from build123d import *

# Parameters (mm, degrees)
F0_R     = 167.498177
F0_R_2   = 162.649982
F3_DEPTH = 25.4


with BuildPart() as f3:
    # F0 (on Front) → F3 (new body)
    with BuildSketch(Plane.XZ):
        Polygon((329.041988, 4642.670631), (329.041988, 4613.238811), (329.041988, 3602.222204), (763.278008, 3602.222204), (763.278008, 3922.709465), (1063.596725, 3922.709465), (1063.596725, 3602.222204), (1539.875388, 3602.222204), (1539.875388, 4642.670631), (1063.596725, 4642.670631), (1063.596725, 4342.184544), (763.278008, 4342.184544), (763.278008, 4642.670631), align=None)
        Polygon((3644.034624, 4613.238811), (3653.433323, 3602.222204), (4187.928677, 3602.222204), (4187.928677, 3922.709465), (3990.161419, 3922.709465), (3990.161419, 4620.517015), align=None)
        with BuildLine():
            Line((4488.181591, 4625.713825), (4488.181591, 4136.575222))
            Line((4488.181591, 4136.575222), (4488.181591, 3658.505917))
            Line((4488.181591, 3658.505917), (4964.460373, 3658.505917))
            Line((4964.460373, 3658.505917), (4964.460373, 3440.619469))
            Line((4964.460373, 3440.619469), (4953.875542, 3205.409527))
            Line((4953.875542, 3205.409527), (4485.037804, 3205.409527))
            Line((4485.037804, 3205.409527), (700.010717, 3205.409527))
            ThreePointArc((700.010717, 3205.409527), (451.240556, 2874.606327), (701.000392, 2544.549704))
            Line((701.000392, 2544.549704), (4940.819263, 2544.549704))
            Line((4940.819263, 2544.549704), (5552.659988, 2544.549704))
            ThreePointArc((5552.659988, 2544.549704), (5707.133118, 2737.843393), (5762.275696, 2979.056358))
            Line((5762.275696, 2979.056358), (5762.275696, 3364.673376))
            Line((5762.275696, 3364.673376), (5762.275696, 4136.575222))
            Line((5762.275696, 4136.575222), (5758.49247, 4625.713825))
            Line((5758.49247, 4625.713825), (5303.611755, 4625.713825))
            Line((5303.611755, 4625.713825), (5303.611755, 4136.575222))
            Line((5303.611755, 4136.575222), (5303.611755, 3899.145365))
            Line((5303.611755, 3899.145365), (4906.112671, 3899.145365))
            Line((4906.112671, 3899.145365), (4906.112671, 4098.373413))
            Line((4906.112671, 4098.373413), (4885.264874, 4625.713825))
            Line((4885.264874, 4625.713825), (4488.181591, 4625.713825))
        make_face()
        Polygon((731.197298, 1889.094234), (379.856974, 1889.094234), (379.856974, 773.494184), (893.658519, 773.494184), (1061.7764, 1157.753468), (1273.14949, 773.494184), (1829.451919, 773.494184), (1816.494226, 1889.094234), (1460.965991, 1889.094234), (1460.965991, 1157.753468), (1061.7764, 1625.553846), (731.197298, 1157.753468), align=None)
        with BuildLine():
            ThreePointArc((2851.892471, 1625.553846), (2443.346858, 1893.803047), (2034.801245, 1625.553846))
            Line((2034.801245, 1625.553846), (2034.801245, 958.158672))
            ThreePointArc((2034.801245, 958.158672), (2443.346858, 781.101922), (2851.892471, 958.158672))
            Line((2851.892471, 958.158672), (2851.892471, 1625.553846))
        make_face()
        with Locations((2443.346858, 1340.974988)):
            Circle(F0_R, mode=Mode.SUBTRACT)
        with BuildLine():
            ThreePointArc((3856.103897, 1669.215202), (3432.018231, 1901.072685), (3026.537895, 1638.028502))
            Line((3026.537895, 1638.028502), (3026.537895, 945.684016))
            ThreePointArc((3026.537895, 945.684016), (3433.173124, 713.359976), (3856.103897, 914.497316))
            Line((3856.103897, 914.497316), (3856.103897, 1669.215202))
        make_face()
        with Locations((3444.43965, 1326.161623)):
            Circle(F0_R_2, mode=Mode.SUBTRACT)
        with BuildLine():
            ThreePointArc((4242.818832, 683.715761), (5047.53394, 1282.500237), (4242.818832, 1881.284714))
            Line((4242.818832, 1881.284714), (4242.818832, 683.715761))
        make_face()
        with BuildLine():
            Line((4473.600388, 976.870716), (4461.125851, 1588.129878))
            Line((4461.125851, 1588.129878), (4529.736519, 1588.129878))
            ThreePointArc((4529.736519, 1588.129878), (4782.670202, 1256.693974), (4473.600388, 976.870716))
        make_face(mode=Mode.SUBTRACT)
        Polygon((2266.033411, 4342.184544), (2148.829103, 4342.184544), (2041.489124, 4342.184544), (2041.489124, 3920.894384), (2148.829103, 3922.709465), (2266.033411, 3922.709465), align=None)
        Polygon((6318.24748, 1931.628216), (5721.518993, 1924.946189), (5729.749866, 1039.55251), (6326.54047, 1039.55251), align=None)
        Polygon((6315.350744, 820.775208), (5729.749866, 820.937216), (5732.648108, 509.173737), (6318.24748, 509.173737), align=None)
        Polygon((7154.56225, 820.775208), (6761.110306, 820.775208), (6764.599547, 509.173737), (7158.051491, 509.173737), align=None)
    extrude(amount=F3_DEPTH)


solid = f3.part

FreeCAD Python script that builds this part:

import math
import FreeCAD as App
import Part
import Sketcher
Q = App.Units.Quantity


def add_polygon(sketch, points):
    """Adds a closed chain of lines whose ends are joined by coincident constraints."""
    first, n = sketch.GeometryCount, len(points)
    for a, b in zip(points, points[1:] + points[:1]):
        sketch.addGeometry(Part.LineSegment(App.Vector(*a, 0), App.Vector(*b, 0)), False)
    for i in range(n):
        sketch.addConstraint(Sketcher.Constraint("Coincident", first + i, 2, first + (i + 1) % n, 1))

doc = App.newDocument("Part")
body = doc.addObject("PartDesign::Body", "Body")
body.AllowCompound = True

sketch1 = body.newObject("Sketcher::SketchObject", "Sketch")
sketch1.AttachmentSupport = (doc.getObject("XZ_Plane"), [""])
sketch1.MapMode = "FlatFace"
add_polygon(sketch1, [(329.041988, 4642.670631), (329.041988, 3602.222204), (763.278008, 3602.222204), (763.278008, 3922.709465), (1063.596725, 3922.709465), (1063.596725, 3602.222204), (1539.875388, 3602.222204), (1539.875388, 4642.670631), (1063.596725, 4642.670631), (1063.596725, 4342.184544), (763.278008, 4342.184544), (763.278008, 4642.670631)])
add_polygon(sketch1, [(3644.034624, 4613.238811), (3653.433323, 3602.222204), (4187.928677, 3602.222204), (4187.928677, 3922.709465), (3990.161419, 3922.709465), (3990.161419, 4620.517015)])
sketch1.addGeometry(Part.LineSegment(App.Vector(4488.181591, 4625.713825, 0), App.Vector(4488.181591, 3658.505917, 0)), False)
sketch1.addGeometry(Part.LineSegment(App.Vector(4488.181591, 3658.505917, 0), App.Vector(4964.460373, 3658.505917, 0)), False)
sketch1.addGeometry(Part.LineSegment(App.Vector(4964.460373, 3658.505917, 0), App.Vector(4964.460373, 3440.619469, 0)), False)
sketch1.addGeometry(Part.LineSegment(App.Vector(4964.460373, 3440.619469, 0), App.Vector(4953.875542, 3205.409527, 0)), False)
sketch1.addGeometry(Part.LineSegment(App.Vector(4953.875542, 3205.409527, 0), App.Vector(700.010717, 3205.409527, 0)), False)
sketch1.addGeometry(Part.ArcOfCircle(Part.Circle(App.Vector(794.884804, 2875.120954, 0), App.Vector(0, 0, 1), 343.644633), math.radians(106.026503), math.radians(254.145104)), False)
sketch1.addGeometry(Part.LineSegment(App.Vector(701.000392, 2544.549704, 0), App.Vector(5552.659988, 2544.549704, 0)), False)
sketch1.addGeometry(Part.ArcOfCircle(Part.Circle(App.Vector(5207.129377, 2979.056358, 0), App.Vector(0, 0, 1), 555.146319), math.radians(-51.507398), math.radians(0)), False)
sketch1.addGeometry(Part.LineSegment(App.Vector(5762.275696, 2979.056358, 0), App.Vector(5762.275696, 4136.575222, 0)), False)
sketch1.addGeometry(Part.LineSegment(App.Vector(5762.275696, 4136.575222, 0), App.Vector(5758.49247, 4625.713825, 0)), False)
sketch1.addGeometry(Part.LineSegment(App.Vector(5758.49247, 4625.713825, 0), App.Vector(5303.611755, 4625.713825, 0)), False)
sketch1.addGeometry(Part.LineSegment(App.Vector(5303.611755, 4625.713825, 0), App.Vector(5303.611755, 3899.145365, 0)), False)
sketch1.addGeometry(Part.LineSegment(App.Vector(5303.611755, 3899.145365, 0), App.Vector(4906.112671, 3899.145365, 0)), False)
sketch1.addGeometry(Part.LineSegment(App.Vector(4906.112671, 3899.145365, 0), App.Vector(4906.112671, 4098.373413, 0)), False)
sketch1.addGeometry(Part.LineSegment(App.Vector(4906.112671, 4098.373413, 0), App.Vector(4885.264874, 4625.713825, 0)), False)
sketch1.addGeometry(Part.LineSegment(App.Vector(4885.264874, 4625.713825, 0), App.Vector(4488.181591, 4625.713825, 0)), False)
add_polygon(sketch1, [(731.197298, 1889.094234), (379.856974, 1889.094234), (379.856974, 773.494184), (893.658519, 773.494184), (1061.7764, 1157.753468), (1273.14949, 773.494184), (1829.451919, 773.494184), (1816.494226, 1889.094234), (1460.965991, 1889.094234), (1460.965991, 1157.753468), (1061.7764, 1625.553846), (731.197298, 1157.753468)])
sketch1.addGeometry(Part.ArcOfCircle(Part.Circle(App.Vector(2443.346858, 1448.569378, 0), App.Vector(0, 0, 1), 445.233669), math.radians(23.422557), math.radians(156.577443)), False)
sketch1.addGeometry(Part.LineSegment(App.Vector(2034.801245, 1625.553846, 0), App.Vector(2034.801245, 958.158672, 0)), False)
sketch1.addGeometry(Part.ArcOfCircle(Part.Circle(App.Vector(2443.346858, 1340.974987, 0), App.Vector(0, 0, 1), 559.873065), math.radians(-136.862183), math.radians(-43.137817)), False)
sketch1.addGeometry(Part.LineSegment(App.Vector(2851.892471, 958.158672, 0), App.Vector(2851.892471, 1625.553846, 0)), False)
sketch1.addGeometry(Part.Circle(App.Vector(2443.346858, 1340.974988, 0), App.Vector(0, 0, 1), 167.498177), False)
sketch1.addGeometry(Part.ArcOfCircle(Part.Circle(App.Vector(3449.738536, 1429.712678, 0), App.Vector(0, 0, 1), 471.692978), math.radians(30.514133), math.radians(153.791794)), False)
sketch1.addGeometry(Part.LineSegment(App.Vector(3026.537895, 1638.028502, 0), App.Vector(3026.537895, 945.684016, 0)), False)
sketch1.addGeometry(Part.ArcOfCircle(Part.Circle(App.Vector(3452.168423, 1218.634817, 0), App.Vector(0, 0, 1), 505.63177), math.radians(-147.328525), math.radians(-36.977402)), False)
sketch1.addGeometry(Part.LineSegment(App.Vector(3856.103897, 914.497316, 0), App.Vector(3856.103897, 1669.215202, 0)), False)
sketch1.addGeometry(Part.Circle(App.Vector(3444.43965, 1326.161623, 0), App.Vector(0, 0, 1), 162.649982), False)
sketch1.addGeometry(Part.ArcOfCircle(Part.Circle(App.Vector(4422.400123, 1282.500237, 0), App.Vector(0, 0, 1), 625.133817), math.radians(-106.694499), math.radians(106.694499)), False)
sketch1.addGeometry(Part.LineSegment(App.Vector(4242.818832, 1881.284714, 0), App.Vector(4242.818832, 683.715761, 0)), False)
sketch1.addGeometry(Part.ArcOfCircle(Part.Circle(App.Vector(4475.961393, 1284.861153, 0), App.Vector(0, 0, 1), 307.999487), math.radians(-90.439212), math.radians(79.944918)), False)
sketch1.addGeometry(Part.LineSegment(App.Vector(4473.600388, 976.870716, 0), App.Vector(4461.125851, 1588.129878, 0)), False)
sketch1.addGeometry(Part.LineSegment(App.Vector(4461.125851, 1588.129878, 0), App.Vector(4529.736519, 1588.129878, 0)), False)
add_polygon(sketch1, [(2266.033411, 4342.184544), (2041.489124, 4342.184544), (2041.489124, 3920.894384), (2148.829103, 3922.709465), (2266.033411, 3922.709465)])
add_polygon(sketch1, [(6318.24748, 1931.628216), (5721.518993, 1924.946189), (5729.749866, 1039.55251), (6326.54047, 1039.55251)])
add_polygon(sketch1, [(6315.350744, 820.775208), (5729.749866, 820.937216), (5732.648108, 509.173737), (6318.24748, 509.173737)])
add_polygon(sketch1, [(7154.56225, 820.775208), (6761.110306, 820.775208), (6764.599547, 509.173737), (7158.051491, 509.173737)])
sketch1.addConstraint(Sketcher.Constraint("Coincident", 18, 2, 19, 1))
sketch1.addConstraint(Sketcher.Constraint("Coincident", 19, 2, 20, 1))
sketch1.addConstraint(Sketcher.Constraint("Coincident", 20, 2, 21, 1))
sketch1.addConstraint(Sketcher.Constraint("Coincident", 21, 2, 22, 1))
sketch1.addConstraint(Sketcher.Constraint("Coincident", 22, 2, 23, 1))
sketch1.addConstraint(Sketcher.Constraint("Coincident", 23, 2, 24, 1))
sketch1.addConstraint(Sketcher.Constraint("Coincident", 24, 2, 25, 1))
sketch1.addConstraint(Sketcher.Constraint("Tangent", 25, 2, 26, 1))
sketch1.addConstraint(Sketcher.Constraint("Coincident", 26, 2, 27, 1))
sketch1.addConstraint(Sketcher.Constraint("Coincident", 27, 2, 28, 1))
sketch1.addConstraint(Sketcher.Constraint("Coincident", 28, 2, 29, 1))
sketch1.addConstraint(Sketcher.Constraint("Coincident", 29, 2, 30, 1))
sketch1.addConstraint(Sketcher.Constraint("Coincident", 30, 2, 31, 1))
sketch1.addConstraint(Sketcher.Constraint("Coincident", 31, 2, 32, 1))
sketch1.addConstraint(Sketcher.Constraint("Coincident", 32, 2, 33, 1))
sketch1.addConstraint(Sketcher.Constraint("Coincident", 33, 2, 18, 1))
sketch1.addConstraint(Sketcher.Constraint("Coincident", 46, 2, 47, 1))
sketch1.addConstraint(Sketcher.Constraint("Coincident", 47, 2, 48, 1))
sketch1.addConstraint(Sketcher.Constraint("Coincident", 48, 2, 49, 1))
sketch1.addConstraint(Sketcher.Constraint("Coincident", 49, 2, 46, 1))
sketch1.addConstraint(Sketcher.Constraint("Coincident", 51, 2, 52, 1))
sketch1.addConstraint(Sketcher.Constraint("Coincident", 52, 2, 53, 1))
sketch1.addConstraint(Sketcher.Constraint("Coincident", 53, 2, 54, 1))
sketch1.addConstraint(Sketcher.Constraint("Coincident", 54, 2, 51, 1))
sketch1.addConstraint(Sketcher.Constraint("Coincident", 56, 1, 57, 2))
sketch1.addConstraint(Sketcher.Constraint("Coincident", 57, 1, 56, 2))
sketch1.addConstraint(Sketcher.Constraint("Coincident", 58, 1, 59, 1))
sketch1.addConstraint(Sketcher.Constraint("Coincident", 59, 2, 60, 1))
sketch1.addConstraint(Sketcher.Constraint("Coincident", 60, 2, 58, 2))
sketch1.addConstraint(Sketcher.Constraint("Vertical", 0))
sketch1.addConstraint(Sketcher.Constraint("Horizontal", 1))
sketch1.addConstraint(Sketcher.Constraint("Vertical", 2))
sketch1.addConstraint(Sketcher.Constraint("Horizontal", 3))
sketch1.addConstraint(Sketcher.Constraint("Vertical", 4))
sketch1.addConstraint(Sketcher.Constraint("Horizontal", 5))
sketch1.addConstraint(Sketcher.Constraint("Vertical", 6))
sketch1.addConstraint(Sketcher.Constraint("Horizontal", 7))
sketch1.addConstraint(Sketcher.Constraint("Vertical", 8))
sketch1.addConstraint(Sketcher.Constraint("Horizontal", 9))
sketch1.addConstraint(Sketcher.Constraint("Vertical", 10))
sketch1.addConstraint(Sketcher.Constraint("Horizontal", 11))
sketch1.addConstraint(Sketcher.Constraint("Horizontal", 13))
sketch1.addConstraint(Sketcher.Constraint("Vertical", 14))
sketch1.addConstraint(Sketcher.Constraint("Horizontal", 15))
sketch1.addConstraint(Sketcher.Constraint("Vertical", 16))
sketch1.addConstraint(Sketcher.Constraint("Vertical", 18))
sketch1.addConstraint(Sketcher.Constraint("Horizontal", 19))
sketch1.addConstraint(Sketcher.Constraint("Vertical", 20))
sketch1.addConstraint(Sketcher.Constraint("Horizontal", 22))
sketch1.addConstraint(Sketcher.Constraint("Horizontal", 24))
sketch1.addConstraint(Sketcher.Constraint("Vertical", 26))
sketch1.addConstraint(Sketcher.Constraint("Horizontal", 28))
sketch1.addConstraint(Sketcher.Constraint("Vertical", 29))
sketch1.addConstraint(Sketcher.Constraint("Horizontal", 30))
sketch1.addConstraint(Sketcher.Constraint("Vertical", 31))
sketch1.addConstraint(Sketcher.Constraint("Horizontal", 33))
sketch1.addConstraint(Sketcher.Constraint("Horizontal", 34))
sketch1.addConstraint(Sketcher.Constraint("Vertical", 35))
sketch1.addConstraint(Sketcher.Constraint("Horizontal", 36))
sketch1.addConstraint(Sketcher.Constraint("Horizontal", 39))
sketch1.addConstraint(Sketcher.Constraint("Horizontal", 41))
sketch1.addConstraint(Sketcher.Constraint("Vertical", 42))
sketch1.addConstraint(Sketcher.Constraint("Vertical", 45))
sketch1.addConstraint(Sketcher.Constraint("Vertical", 47))
sketch1.addConstraint(Sketcher.Constraint("Vertical", 49))
sketch1.addConstraint(Sketcher.Constraint("Vertical", 52))
sketch1.addConstraint(Sketcher.Constraint("Vertical", 54))
sketch1.addConstraint(Sketcher.Constraint("Vertical", 57))
sketch1.addConstraint(Sketcher.Constraint("Horizontal", 60))
sketch1.addConstraint(Sketcher.Constraint("Horizontal", 61))
sketch1.addConstraint(Sketcher.Constraint("Vertical", 62))
sketch1.addConstraint(Sketcher.Constraint("Horizontal", 64))
sketch1.addConstraint(Sketcher.Constraint("Vertical", 65))
sketch1.addConstraint(Sketcher.Constraint("Horizontal", 68))
sketch1.addConstraint(Sketcher.Constraint("Horizontal", 72))
sketch1.addConstraint(Sketcher.Constraint("Horizontal", 74))
sketch1.addConstraint(Sketcher.Constraint("Horizontal", 76))
sketch1.addConstraint(Sketcher.Constraint("Coincident", 50, 3, 48, 3))
sketch1.addConstraint(Sketcher.Constraint("Parallel", 12, 67))
sketch1.addConstraint(Sketcher.Constraint("Parallel", 67, 69))
sketch1.addConstraint(Sketcher.Constraint("Parallel", 69, 71))
sketch1.addConstraint(Sketcher.Constraint("Parallel", 71, 73))
sketch1.addConstraint(Sketcher.Constraint("Perpendicular", 66, 75))
sketch1.addConstraint(Sketcher.Constraint("Parallel", 75, 77))
sketch1.addConstraint(Sketcher.Constraint("Horizontal", 1, 2, 4, 2))
sketch1.addConstraint(Sketcher.Constraint("Horizontal", 7, 2, 10, 2))
sketch1.addConstraint(Sketcher.Constraint("Horizontal", 5, 2, 12, 2))
sketch1.addConstraint(Sketcher.Constraint("Horizontal", 3, 2, 14, 2))
sketch1.addConstraint(Sketcher.Constraint("Horizontal", 28, 2, 32, 2))
sketch1.addConstraint(Sketcher.Constraint("Horizontal", 36, 2, 38, 2))
sketch1.addConstraint(Sketcher.Constraint("Horizontal", 34, 2, 40, 2))
sketch1.addConstraint(Sketcher.Constraint("Horizontal", 37, 2, 42, 2))
sketch1.addConstraint(Sketcher.Constraint("Horizontal", 42, 2, 44, 2))
sketch1.addConstraint(Sketcher.Constraint("Horizontal", 43, 2, 46, 2))
sketch1.addConstraint(Sketcher.Constraint("Horizontal", 47, 2, 48, 2))
sketch1.addConstraint(Sketcher.Constraint("Horizontal", 46, 2, 49, 2))
sketch1.addConstraint(Sketcher.Constraint("Horizontal", 9, 2, 61, 2))
sketch1.addConstraint(Sketcher.Constraint("Horizontal", 15, 2, 63, 2))
sketch1.addConstraint(Sketcher.Constraint("Horizontal", 73, 2, 74, 2))
sketch1.addConstraint(Sketcher.Constraint("Horizontal", 72, 2, 75, 2))
sketch1.addConstraint(Sketcher.Constraint("Vertical", 4, 2, 7, 2))
sketch1.addConstraint(Sketcher.Constraint("Vertical", 2, 2, 9, 2))
sketch1.addConstraint(Sketcher.Constraint("Vertical", 37, 2, 43, 2))
sketch1.addConstraint(Sketcher.Constraint("Vertical", 67, 2, 70, 2))
sketch1.addConstraint(Sketcher.Constraint("Vertical", 69, 2, 72, 2))
sketch1.addConstraint(Sketcher.Constraint("DistanceX", 33, 2, 33, 1, Q("15.6332001 in")))
sketch1.addConstraint(Sketcher.Constraint("Radius", 25, 555.146319))
sketch1.addConstraint(Sketcher.Constraint("Radius", 46, 445.233669))
sketch1.addConstraint(Sketcher.Constraint("Radius", 53, 505.63177))
sketch1.addConstraint(Sketcher.Constraint("Diameter", 50, 334.996354))
sketch1.addConstraint(Sketcher.Constraint("Diameter", 55, 325.299964))
sketch1.addConstraint(Sketcher.Constraint("Radius", 23, 343.644633))
sketch1.addConstraint(Sketcher.Constraint("Radius", 48, 559.873065))
sketch1.addConstraint(Sketcher.Constraint("Radius", 51, 471.692978))
sketch1.addConstraint(Sketcher.Constraint("Radius", 56, 625.133817))
sketch1.addConstraint(Sketcher.Constraint("Radius", 58, 307.999487))
sketch1.addConstraint(Sketcher.Constraint("Distance", 40, 1115.675299))
sketch1.addConstraint(Sketcher.Constraint("Distance", 70, 585.6009))
sketch1.addConstraint(Sketcher.Constraint("DistanceX", 1, 1, 1, 2, 434.23602))
sketch1.addConstraint(Sketcher.Constraint("DistanceX", 39, 1, 39, 2, 556.302429))
sketch1.addConstraint(Sketcher.Constraint("DistanceX", 60, 1, 60, 2, 68.610668))
sketch1.addConstraint(Sketcher.Constraint("DistanceX", 72, 1, 72, 2, 585.599372))
sketch1.addConstraint(Sketcher.Constraint("DistanceY", 2, 1, 2, 2, 320.487261))
sketch1.addConstraint(Sketcher.Constraint("DistanceY", 16, 1, 16, 2, 697.80755))
sketch1.addConstraint(Sketcher.Constraint("DistanceY", 29, 2, 29, 1, 726.56846))
sketch1.addConstraint(Sketcher.Constraint("DistanceY", 31, 1, 31, 2, 199.228048))
sketch1.addConstraint(Sketcher.Constraint("DistanceY", 35, 2, 35, 1, 1115.60005))
sketch1.addConstraint(Sketcher.Constraint("DistanceY", 62, 2, 62, 1, 421.29016))
sketch1.addConstraint(Sketcher.Constraint("DistanceY", 65, 1, 65, 2, 419.475079))
sketch1.addConstraint(Sketcher.Constraint("DistanceX", -1, 1, 37, 2, 1061.7764))
sketch1.addConstraint(Sketcher.Constraint("DistanceX", -1, 1, 44, 2, 731.197298))
sketch1.addConstraint(Sketcher.Constraint("DistanceY", -1, 1, 51, 2, 1638.028502))
sketch1.addConstraint(Sketcher.Constraint("DistanceY", -1, 1, 54, 2, 1669.215202))
sketch1.addConstraint(Sketcher.Constraint("Distance", 17, 346.203308))
sketch1.addConstraint(Sketcher.Constraint("Distance", 21, 235.447989))
sketch1.addConstraint(Sketcher.Constraint("Distance", 59, 611.386439))
sketch1.addConstraint(Sketcher.Constraint("Distance", 71, 311.77695))
sketch1.addConstraint(Sketcher.Constraint("DistanceX", 3, 1, 3, 2, 300.318717))
sketch1.addConstraint(Sketcher.Constraint("DistanceX", 5, 1, 5, 2, 476.278663))
sketch1.addConstraint(Sketcher.Constraint("DistanceX", 13, 1, 13, 2, 534.495354))
sketch1.addConstraint(Sketcher.Constraint("DistanceX", 15, 2, 15, 1, 197.767258))
sketch1.addConstraint(Sketcher.Constraint("DistanceX", 19, 1, 19, 2, 476.278782))
sketch1.addConstraint(Sketcher.Constraint("DistanceX", 22, 2, 22, 1, 4253.864825))
sketch1.addConstraint(Sketcher.Constraint("DistanceX", 24, 1, 24, 2, 4851.659596))
sketch1.addConstraint(Sketcher.Constraint("DistanceX", 28, 2, 28, 1, 454.880715))
sketch1.addConstraint(Sketcher.Constraint("DistanceX", 30, 2, 30, 1, 397.499084))
sketch1.addConstraint(Sketcher.Constraint("DistanceX", 34, 2, 34, 1, 351.340324))
sketch1.addConstraint(Sketcher.Constraint("DistanceX", 36, 1, 36, 2, 513.801545))
sketch1.addConstraint(Sketcher.Constraint("DistanceX", 41, 2, 41, 1, 355.528235))
sketch1.addConstraint(Sketcher.Constraint("DistanceX", 61, 2, 61, 1, 224.544287))
sketch1.addConstraint(Sketcher.Constraint("DistanceX", 64, 1, 64, 2, 117.204308))
sketch1.addConstraint(Sketcher.Constraint("DistanceX", 68, 1, 68, 2, 596.790604))
sketch1.addConstraint(Sketcher.Constraint("DistanceX", 74, 2, 74, 1, 393.451944))
sketch1.addConstraint(Sketcher.Constraint("DistanceY", 0, 2, 0, 1, 1040.448427))
sketch1.addConstraint(Sketcher.Constraint("DistanceY", 18, 2, 18, 1, 967.207908))
sketch1.addConstraint(Sketcher.Constraint("DistanceY", 20, 2, 20, 1, 217.886448))
sketch1.addConstraint(Sketcher.Constraint("DistanceY", 26, 1, 26, 2, 1157.518864))
sketch1.addConstraint(Sketcher.Constraint("DistanceY", 42, 2, 42, 1, 731.340766))
sketch1.addConstraint(Sketcher.Constraint("DistanceY", 47, 2, 47, 1, 667.395174))
sketch1.addConstraint(Sketcher.Constraint("DistanceY", 52, 2, 52, 1, 692.344486))
sketch1.addConstraint(Sketcher.Constraint("DistanceY", 54, 1, 54, 2, 754.717886))
sketch1.addConstraint(Sketcher.Constraint("DistanceY", 57, 2, 57, 1, 1197.568953))
sketch1.addConstraint(Sketcher.Constraint("DistanceY", -1, 1, 25, 3, 2979.056358))
sketch1.addConstraint(Sketcher.Constraint("DistanceY", -1, 1, 46, 3, 1448.569378))
sketch1.addConstraint(Sketcher.Constraint("DistanceY", -1, 1, 50, 3, 1340.974988))
sketch1.addConstraint(Sketcher.Constraint("DistanceY", -1, 1, 51, 3, 1429.712678))
sketch1.addConstraint(Sketcher.Constraint("DistanceX", -1, 1, 55, 3, 3444.43965))
sketch1.addConstraint(Sketcher.Constraint("DistanceX", -1, 1, 0, 2, 329.041988))
sketch1.addConstraint(Sketcher.Constraint("DistanceY", -1, 1, 6, 2, 4642.670631))
sketch1.addConstraint(Sketcher.Constraint("DistanceX", -1, 1, 15, 2, 3990.161419))
sketch1.addConstraint(Sketcher.Constraint("DistanceY", -1, 1, 17, 2, 4613.238811))
sketch1.addConstraint(Sketcher.Constraint("DistanceX", -1, 1, 18, 2, 4488.181591))
sketch1.addConstraint(Sketcher.Constraint("DistanceY", -1, 1, 20, 2, 3440.619469))
sketch1.addConstraint(Sketcher.Constraint("DistanceX", -1, 1, 21, 2, 4953.875542))
sketch1.addConstraint(Sketcher.Constraint("DistanceX", -1, 1, 24, 2, 5552.659988))
sketch1.addConstraint(Sketcher.Constraint("DistanceX", -1, 1, 27, 2, 5758.49247))
sketch1.addConstraint(Sketcher.Constraint("DistanceY", -1, 1, 37, 2, 1157.753468))
sketch1.addConstraint(Sketcher.Constraint("DistanceX", -1, 1, 38, 2, 1273.14949))
sketch1.addConstraint(Sketcher.Constraint("DistanceX", -1, 1, 49, 2, 2851.892471))
sketch1.addConstraint(Sketcher.Constraint("DistanceY", -1, 1, 56, 1, 683.715761))
sketch1.addConstraint(Sketcher.Constraint("DistanceX", -1, 1, 57, 1, 4242.818832))
sketch1.addConstraint(Sketcher.Constraint("DistanceX", -1, 1, 58, 1, 4473.600388))
sketch1.addConstraint(Sketcher.Constraint("DistanceX", -1, 1, 59, 2, 4461.125851))
sketch1.addConstraint(Sketcher.Constraint("DistanceY", -1, 1, 59, 2, 1588.129878))
sketch1.addConstraint(Sketcher.Constraint("DistanceX", -1, 1, 64, 2, 2266.033411))
sketch1.addConstraint(Sketcher.Constraint("DistanceY", -1, 1, 66, 2, 1924.946189))
sketch1.addConstraint(Sketcher.Constraint("DistanceY", -1, 1, 67, 2, 1039.55251))
sketch1.addConstraint(Sketcher.Constraint("DistanceX", -1, 1, 68, 2, 6326.54047))
sketch1.addConstraint(Sketcher.Constraint("DistanceY", -1, 1, 73, 2, 820.775208))
sketch1.addConstraint(Sketcher.Constraint("DistanceX", -1, 1, 76, 2, 7158.051491))
sketch1.addConstraint(Sketcher.Constraint("Distance", 27, 489.153233))
sketch1.addConstraint(Sketcher.Constraint("DistanceX", -1, 1, 51, 3, 3449.738536))
sketch1.addConstraint(Sketcher.Constraint("DistanceY", -1, 1, 55, 3, 1326.161623))
pad1 = body.newObject("PartDesign::Pad", "Pad")
pad1.Profile = sketch1
pad1.Length = Q("1 in")

doc.recompute()
